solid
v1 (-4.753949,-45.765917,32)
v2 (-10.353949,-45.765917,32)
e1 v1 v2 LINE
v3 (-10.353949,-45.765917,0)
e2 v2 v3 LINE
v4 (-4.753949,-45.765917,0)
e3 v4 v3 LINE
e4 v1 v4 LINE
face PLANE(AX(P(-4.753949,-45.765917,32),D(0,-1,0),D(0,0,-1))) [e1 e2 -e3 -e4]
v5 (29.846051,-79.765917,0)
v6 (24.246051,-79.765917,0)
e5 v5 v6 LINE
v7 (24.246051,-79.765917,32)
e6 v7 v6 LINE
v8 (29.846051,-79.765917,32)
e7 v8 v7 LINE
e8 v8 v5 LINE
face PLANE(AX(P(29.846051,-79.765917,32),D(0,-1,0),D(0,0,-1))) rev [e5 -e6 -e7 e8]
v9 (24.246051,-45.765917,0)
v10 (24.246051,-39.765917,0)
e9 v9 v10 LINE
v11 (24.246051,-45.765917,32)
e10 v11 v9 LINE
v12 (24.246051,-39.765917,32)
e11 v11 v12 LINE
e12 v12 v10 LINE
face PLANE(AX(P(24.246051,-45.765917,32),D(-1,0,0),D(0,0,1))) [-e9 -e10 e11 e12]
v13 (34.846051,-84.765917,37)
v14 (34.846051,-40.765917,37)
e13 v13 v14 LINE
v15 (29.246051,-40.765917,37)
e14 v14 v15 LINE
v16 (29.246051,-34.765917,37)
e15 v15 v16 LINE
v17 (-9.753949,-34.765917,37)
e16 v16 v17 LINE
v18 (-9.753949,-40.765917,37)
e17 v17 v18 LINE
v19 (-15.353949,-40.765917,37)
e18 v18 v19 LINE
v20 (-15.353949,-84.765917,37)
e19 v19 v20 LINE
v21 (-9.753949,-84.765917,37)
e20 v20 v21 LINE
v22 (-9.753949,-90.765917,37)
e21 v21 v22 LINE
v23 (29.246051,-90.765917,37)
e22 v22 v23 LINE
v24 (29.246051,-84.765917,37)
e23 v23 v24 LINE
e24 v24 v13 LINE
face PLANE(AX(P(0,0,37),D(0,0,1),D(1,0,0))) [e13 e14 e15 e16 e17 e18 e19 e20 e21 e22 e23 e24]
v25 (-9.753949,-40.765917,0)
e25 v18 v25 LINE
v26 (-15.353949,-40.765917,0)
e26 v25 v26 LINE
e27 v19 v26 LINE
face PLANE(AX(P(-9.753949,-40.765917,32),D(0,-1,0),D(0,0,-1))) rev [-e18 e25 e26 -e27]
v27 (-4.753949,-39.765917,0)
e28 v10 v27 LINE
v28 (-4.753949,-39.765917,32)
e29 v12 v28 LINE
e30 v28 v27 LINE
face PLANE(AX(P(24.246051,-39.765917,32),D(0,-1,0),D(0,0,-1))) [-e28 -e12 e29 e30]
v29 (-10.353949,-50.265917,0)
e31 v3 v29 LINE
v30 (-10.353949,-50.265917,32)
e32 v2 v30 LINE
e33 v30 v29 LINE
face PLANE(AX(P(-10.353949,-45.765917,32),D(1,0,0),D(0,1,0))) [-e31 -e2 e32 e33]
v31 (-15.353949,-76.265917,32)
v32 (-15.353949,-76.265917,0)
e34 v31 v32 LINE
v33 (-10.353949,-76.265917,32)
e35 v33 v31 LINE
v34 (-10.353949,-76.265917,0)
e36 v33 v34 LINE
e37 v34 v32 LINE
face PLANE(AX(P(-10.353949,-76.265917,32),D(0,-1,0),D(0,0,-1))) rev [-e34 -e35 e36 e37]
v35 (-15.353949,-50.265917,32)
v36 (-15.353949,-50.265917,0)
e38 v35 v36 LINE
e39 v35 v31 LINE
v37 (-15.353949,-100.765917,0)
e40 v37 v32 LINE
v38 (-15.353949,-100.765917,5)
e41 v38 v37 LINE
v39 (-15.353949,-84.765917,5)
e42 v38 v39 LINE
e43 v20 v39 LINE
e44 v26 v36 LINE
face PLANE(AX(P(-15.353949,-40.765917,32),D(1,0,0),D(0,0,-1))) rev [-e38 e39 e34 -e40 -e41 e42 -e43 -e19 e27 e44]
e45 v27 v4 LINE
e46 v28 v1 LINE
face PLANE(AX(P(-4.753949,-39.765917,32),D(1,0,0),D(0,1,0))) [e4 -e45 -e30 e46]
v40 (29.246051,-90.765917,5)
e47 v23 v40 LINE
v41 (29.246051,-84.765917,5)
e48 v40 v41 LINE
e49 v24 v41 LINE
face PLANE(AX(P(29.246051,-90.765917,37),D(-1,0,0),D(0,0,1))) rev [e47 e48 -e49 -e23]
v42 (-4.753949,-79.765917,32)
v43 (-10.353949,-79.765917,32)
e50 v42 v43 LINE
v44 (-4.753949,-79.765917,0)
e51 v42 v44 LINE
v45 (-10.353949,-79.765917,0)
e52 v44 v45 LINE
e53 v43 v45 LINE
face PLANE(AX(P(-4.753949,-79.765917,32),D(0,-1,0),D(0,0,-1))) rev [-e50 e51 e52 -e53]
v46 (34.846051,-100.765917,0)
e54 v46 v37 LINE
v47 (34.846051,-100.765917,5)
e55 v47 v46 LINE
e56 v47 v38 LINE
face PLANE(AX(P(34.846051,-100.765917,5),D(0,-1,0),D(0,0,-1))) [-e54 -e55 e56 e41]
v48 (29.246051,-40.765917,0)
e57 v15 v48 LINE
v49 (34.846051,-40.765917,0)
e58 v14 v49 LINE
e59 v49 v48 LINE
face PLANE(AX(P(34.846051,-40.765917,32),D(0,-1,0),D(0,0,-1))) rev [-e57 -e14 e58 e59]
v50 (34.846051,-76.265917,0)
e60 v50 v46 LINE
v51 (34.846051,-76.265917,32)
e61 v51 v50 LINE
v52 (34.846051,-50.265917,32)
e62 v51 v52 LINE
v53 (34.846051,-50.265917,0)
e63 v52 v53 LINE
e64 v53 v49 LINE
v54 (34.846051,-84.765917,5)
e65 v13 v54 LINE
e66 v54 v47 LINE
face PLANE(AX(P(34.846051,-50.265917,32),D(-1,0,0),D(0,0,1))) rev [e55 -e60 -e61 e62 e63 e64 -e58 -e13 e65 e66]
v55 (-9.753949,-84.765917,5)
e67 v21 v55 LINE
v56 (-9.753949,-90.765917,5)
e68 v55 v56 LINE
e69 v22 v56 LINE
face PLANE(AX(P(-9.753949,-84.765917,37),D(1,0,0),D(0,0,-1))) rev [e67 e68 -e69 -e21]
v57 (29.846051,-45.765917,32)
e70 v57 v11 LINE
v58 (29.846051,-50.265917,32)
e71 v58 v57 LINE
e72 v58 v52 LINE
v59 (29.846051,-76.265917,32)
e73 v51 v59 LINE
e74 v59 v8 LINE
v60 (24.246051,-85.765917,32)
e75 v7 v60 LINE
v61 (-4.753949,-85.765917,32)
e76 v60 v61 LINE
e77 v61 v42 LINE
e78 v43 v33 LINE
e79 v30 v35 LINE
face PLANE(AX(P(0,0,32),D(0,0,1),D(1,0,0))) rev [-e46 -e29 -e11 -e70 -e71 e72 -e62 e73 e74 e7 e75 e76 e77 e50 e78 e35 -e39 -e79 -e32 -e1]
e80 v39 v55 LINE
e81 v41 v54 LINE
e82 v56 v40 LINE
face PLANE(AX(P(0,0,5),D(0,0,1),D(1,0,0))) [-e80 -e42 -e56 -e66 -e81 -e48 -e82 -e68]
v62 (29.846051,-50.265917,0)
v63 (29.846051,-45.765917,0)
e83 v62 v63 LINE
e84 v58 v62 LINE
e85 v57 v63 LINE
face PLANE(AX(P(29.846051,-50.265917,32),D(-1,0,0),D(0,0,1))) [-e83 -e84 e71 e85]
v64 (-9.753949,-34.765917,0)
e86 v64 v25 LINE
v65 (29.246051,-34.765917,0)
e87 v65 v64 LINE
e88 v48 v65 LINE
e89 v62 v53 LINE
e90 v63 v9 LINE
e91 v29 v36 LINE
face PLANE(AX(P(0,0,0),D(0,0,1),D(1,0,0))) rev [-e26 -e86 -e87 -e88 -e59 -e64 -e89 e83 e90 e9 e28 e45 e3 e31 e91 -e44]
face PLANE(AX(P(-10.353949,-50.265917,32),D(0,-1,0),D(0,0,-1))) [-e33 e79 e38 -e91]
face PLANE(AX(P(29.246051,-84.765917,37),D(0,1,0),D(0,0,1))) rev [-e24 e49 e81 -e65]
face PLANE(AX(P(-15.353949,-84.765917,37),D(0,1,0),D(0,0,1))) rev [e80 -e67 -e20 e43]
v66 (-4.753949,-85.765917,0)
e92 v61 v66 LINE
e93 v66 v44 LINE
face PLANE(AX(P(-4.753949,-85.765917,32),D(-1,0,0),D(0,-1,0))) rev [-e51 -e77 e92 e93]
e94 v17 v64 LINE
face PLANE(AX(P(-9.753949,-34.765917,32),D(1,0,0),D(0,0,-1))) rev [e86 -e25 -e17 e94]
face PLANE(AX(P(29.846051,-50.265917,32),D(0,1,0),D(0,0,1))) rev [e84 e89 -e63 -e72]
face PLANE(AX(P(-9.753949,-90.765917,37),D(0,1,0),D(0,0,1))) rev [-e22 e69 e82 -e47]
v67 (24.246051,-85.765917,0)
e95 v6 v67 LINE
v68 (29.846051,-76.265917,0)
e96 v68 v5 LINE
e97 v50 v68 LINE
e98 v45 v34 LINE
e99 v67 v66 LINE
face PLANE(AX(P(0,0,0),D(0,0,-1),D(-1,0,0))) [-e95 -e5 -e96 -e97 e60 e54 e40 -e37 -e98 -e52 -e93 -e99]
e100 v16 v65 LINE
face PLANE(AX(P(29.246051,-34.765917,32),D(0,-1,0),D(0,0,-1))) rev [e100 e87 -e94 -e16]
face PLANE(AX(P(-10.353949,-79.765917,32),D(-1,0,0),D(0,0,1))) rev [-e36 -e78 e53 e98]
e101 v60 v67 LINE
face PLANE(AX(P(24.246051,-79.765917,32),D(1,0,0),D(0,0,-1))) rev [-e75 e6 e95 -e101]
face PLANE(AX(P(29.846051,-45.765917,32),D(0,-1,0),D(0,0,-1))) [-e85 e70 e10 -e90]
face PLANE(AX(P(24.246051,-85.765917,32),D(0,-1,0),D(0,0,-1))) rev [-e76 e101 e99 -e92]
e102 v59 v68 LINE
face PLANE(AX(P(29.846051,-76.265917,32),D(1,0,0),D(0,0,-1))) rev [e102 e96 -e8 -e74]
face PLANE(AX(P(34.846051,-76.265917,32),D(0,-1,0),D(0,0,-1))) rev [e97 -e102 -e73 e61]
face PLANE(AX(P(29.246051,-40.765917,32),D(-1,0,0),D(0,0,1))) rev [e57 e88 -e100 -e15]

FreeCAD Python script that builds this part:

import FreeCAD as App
import Part
import Sketcher

V = App.Vector

doc = App.newDocument("Part")
params = doc.addObject("Spreadsheet::Sheet", "Params")
for row, (alias, value) in enumerate([
    ("sketch1_width", "29 mm"),
    ("sketch1_width2", "5 mm"),
    ("sketch1_height", "6 mm"),
    ("sketch1_width3", "5.6 mm"),
    ("sketch1_height2", "3.5 mm"),
    ("pad1_length", "32 mm"),
    ("sketch2_width", "5 mm"),
    ("sketch2_width2", "39 mm"),
    ("sketch2_height", "6 mm"),
    ("sketch2_width3", "5.6 mm"),
    ("sketch2_height2", "4.5 mm"),
    ("pad2_length", "32 mm"),
    ("sketch3_width", "39 mm"),
    ("sketch3_height", "6 mm"),
    ("sketch3_height2", "44 mm"),
    ("sketch3_width2", "5.6 mm"),
    ("pad3_length", "5 mm"),
    ("sketch4_width", "39 mm"),
    ("sketch4_height", "16 mm"),
    ("sketch4_height2", "6 mm"),
    ("sketch4_width2", "50.2 mm"),
    ("pad4_length", "5 mm"),
], start=1):
    params.set(f"A{row}", alias)
    params.set(f"B{row}", "=" + value)
    params.setAlias(f"B{row}", alias)

body = doc.addObject("PartDesign::Body", "Body")

sketch1 = body.newObject("Sketcher::SketchObject", "Sketch")
sketch1.AttachmentSupport = (doc.getObject("XY_Plane"), [""])
sketch1.MapMode = "FlatFace"
sketch1.addGeometry([
    Part.LineSegment(V(29.846051, -76.265917, 0), V(29.846051, -79.765917, 0)),
    Part.LineSegment(V(29.846051, -79.765917, 0), V(24.246051, -79.765917, 0)),
    Part.LineSegment(V(24.246051, -79.765917, 0), V(24.246051, -85.765917, 0)),
    Part.LineSegment(V(24.246051, -85.765917, 0), V(-4.753949, -85.765917, 0)),
    Part.LineSegment(V(-4.753949, -85.765917, 0), V(-4.753949, -79.765917, 0)),
    Part.LineSegment(V(-4.753949, -79.765917, 0), V(-10.353949, -79.765917, 0)),
    Part.LineSegment(V(-10.353949, -79.765917, 0), V(-10.353949, -76.265917, 0)),
    Part.LineSegment(V(-10.353949, -76.265917, 0), V(-15.353949, -76.265917, 0)),
    Part.LineSegment(V(-15.353949, -76.265917, 0), V(-15.353949, -84.765917, 0)),
    Part.LineSegment(V(-15.353949, -84.765917, 0), V(-9.753949, -84.765917, 0)),
    Part.LineSegment(V(-9.753949, -84.765917, 0), V(-9.753949, -90.765917, 0)),
    Part.LineSegment(V(-9.753949, -90.765917, 0), V(29.246051, -90.765917, 0)),
    Part.LineSegment(V(29.246051, -90.765917, 0), V(29.246051, -84.765917, 0)),
    Part.LineSegment(V(29.246051, -84.765917, 0), V(34.846051, -84.765917, 0)),
    Part.LineSegment(V(34.846051, -84.765917, 0), V(34.846051, -76.265917, 0)),
    Part.LineSegment(V(34.846051, -76.265917, 0), V(29.846051, -76.265917, 0)),
], False)
sketch1.addConstraint([
    Sketcher.Constraint("Coincident", 0, 2, 1, 1),
    Sketcher.Constraint("Coincident", 1, 2, 2, 1),
    Sketcher.Constraint("Coincident", 2, 2, 3, 1),
    Sketcher.Constraint("Coincident", 3, 2, 4, 1),
    Sketcher.Constraint("Coincident", 4, 2, 5, 1),
    Sketcher.Constraint("Coincident", 5, 2, 6, 1),
    Sketcher.Constraint("Coincident", 6, 2, 7, 1),
    Sketcher.Constraint("Coincident", 7, 2, 8, 1),
    Sketcher.Constraint("Coincident", 8, 2, 9, 1),
    Sketcher.Constraint("Coincident", 9, 2, 10, 1),
    Sketcher.Constraint("Coincident", 10, 2, 11, 1),
    Sketcher.Constraint("Coincident", 11, 2, 12, 1),
    Sketcher.Constraint("Coincident", 12, 2, 13, 1),
    Sketcher.Constraint("Coincident", 13, 2, 14, 1),
    Sketcher.Constraint("Coincident", 14, 2, 15, 1),
    Sketcher.Constraint("Coincident", 15, 2, 0, 1),
    Sketcher.Constraint("Vertical", 0),
    Sketcher.Constraint("Horizontal", 1),
    Sketcher.Constraint("Vertical", 2),
    Sketcher.Constraint("Horizontal", 3),
    Sketcher.Constraint("Vertical", 4),
    Sketcher.Constraint("Horizontal", 5),
    Sketcher.Constraint("Vertical", 6),
    Sketcher.Constraint("Horizontal", 7),
    Sketcher.Constraint("Vertical", 8),
    Sketcher.Constraint("Horizontal", 9),
    Sketcher.Constraint("Vertical", 10),
    Sketcher.Constraint("Horizontal", 11),
    Sketcher.Constraint("Vertical", 12),
    Sketcher.Constraint("Horizontal", 13),
    Sketcher.Constraint("Vertical", 14),
    Sketcher.Constraint("Horizontal", 15),
    Sketcher.Constraint("Horizontal", 1, 2, 4, 2),
    Sketcher.Constraint("Horizontal", 9, 2, 12, 2),
    Sketcher.Constraint("Horizontal", 7, 2, 14, 2),
    Sketcher.Constraint("Equal", 1, 5),
    Sketcher.Constraint("Equal", 5, 9),
    Sketcher.Constraint("Equal", 9, 13),
    Sketcher.Constraint("Equal", 7, 15),
    Sketcher.Constraint("Equal", 4, 10),
    Sketcher.Constraint("DistanceX", 3, 2, 3, 1, 29.0),
    Sketcher.Constraint("DistanceX", 7, 2, 7, 1, 5.0),
    Sketcher.Constraint("DistanceY", 2, 2, 2, 1, 6.0),
    Sketcher.Constraint("DistanceX", 1, 2, 1, 1, 5.6),
    Sketcher.Constraint("DistanceY", 0, 2, 0, 1, 3.5),
    Sketcher.Constraint("DistanceY", 8, 2, 8, 1, 8.5),
    Sketcher.Constraint("DistanceX", -1, 1, 0, 2, 29.846051),
    Sketcher.Constraint("DistanceY", 0, 2, -1, 1, 79.765917),
])
sketch1.setExpression("Constraints[40]", "Params.sketch1_width")
sketch1.setExpression("Constraints[41]", "Params.sketch1_width2")
sketch1.setExpression("Constraints[42]", "Params.sketch1_height")
sketch1.setExpression("Constraints[43]", "Params.sketch1_width3")
sketch1.setExpression("Constraints[44]", "Params.sketch1_height2")
pad1 = body.newObject("PartDesign::Pad", "Pad")
pad1.Profile = sketch1
pad1.setExpression("Length", "Params.pad1_length")
body2 = doc.addObject("PartDesign::Body", "Body001")

sketch2 = body2.newObject("Sketcher::SketchObject", "Sketch001")
sketch2.AttachmentSupport = (doc.getObject("XY_Plane001"), [""])
sketch2.MapMode = "FlatFace"
sketch2.addGeometry([
    Part.LineSegment(V(29.846051, -45.765917, 0), V(29.846051, -50.265917, 0)),
    Part.LineSegment(V(29.846051, -50.265917, 0), V(34.846051, -50.265917, 0)),
    Part.LineSegment(V(34.846051, -50.265917, 0), V(34.846051, -40.765917, 0)),
    Part.LineSegment(V(34.846051, -40.765917, 0), V(29.246051, -40.765917, 0)),
    Part.LineSegment(V(29.246051, -40.765917, 0), V(29.246051, -34.765917, 0)),
    Part.LineSegment(V(29.246051, -34.765917, 0), V(-9.753949, -34.765917, 0)),
    Part.LineSegment(V(-9.753949, -34.765917, 0), V(-9.753949, -40.765917, 0)),
    Part.LineSegment(V(-9.753949, -40.765917, 0), V(-15.353949, -40.765917, 0)),
    Part.LineSegment(V(-15.353949, -40.765917, 0), V(-15.353949, -50.265917, 0)),
    Part.LineSegment(V(-15.353949, -50.265917, 0), V(-10.353949, -50.265917, 0)),
    Part.LineSegment(V(-10.353949, -50.265917, 0), V(-10.353949, -45.765917, 0)),
    Part.LineSegment(V(-10.353949, -45.765917, 0), V(-4.753949, -45.765917, 0)),
    Part.LineSegment(V(-4.753949, -45.765917, 0), V(-4.753949, -39.765917, 0)),
    Part.LineSegment(V(-4.753949, -39.765917, 0), V(24.246051, -39.765917, 0)),
    Part.LineSegment(V(24.246051, -39.765917, 0), V(24.246051, -45.765917, 0)),
    Part.LineSegment(V(24.246051, -45.765917, 0), V(29.846051, -45.765917, 0)),
], False)
sketch2.addConstraint([
    Sketcher.Constraint("Coincident", 0, 2, 1, 1),
    Sketcher.Constraint("Coincident", 1, 2, 2, 1),
    Sketcher.Constraint("Coincident", 2, 2, 3, 1),
    Sketcher.Constraint("Coincident", 3, 2, 4, 1),
    Sketcher.Constraint("Coincident", 4, 2, 5, 1),
    Sketcher.Constraint("Coincident", 5, 2, 6, 1),
    Sketcher.Constraint("Coincident", 6, 2, 7, 1),
    Sketcher.Constraint("Coincident", 7, 2, 8, 1),
    Sketcher.Constraint("Coincident", 8, 2, 9, 1),
    Sketcher.Constraint("Coincident", 9, 2, 10, 1),
    Sketcher.Constraint("Coincident", 10, 2, 11, 1),
    Sketcher.Constraint("Coincident", 11, 2, 12, 1),
    Sketcher.Constraint("Coincident", 12, 2, 13, 1),
    Sketcher.Constraint("Coincident", 13, 2, 14, 1),
    Sketcher.Constraint("Coincident", 14, 2, 15, 1),
    Sketcher.Constraint("Coincident", 15, 2, 0, 1),
    Sketcher.Constraint("Vertical", 0),
    Sketcher.Constraint("Horizontal", 1),
    Sketcher.Constraint("Vertical", 2),
    Sketcher.Constraint("Horizontal", 3),
    Sketcher.Constraint("Vertical", 4),
    Sketcher.Constraint("Horizontal", 5),
    Sketcher.Constraint("Vertical", 6),
    Sketcher.Constraint("Horizontal", 7),
    Sketcher.Constraint("Vertical", 8),
    Sketcher.Constraint("Horizontal", 9),
    Sketcher.Constraint("Vertical", 10),
    Sketcher.Constraint("Horizontal", 11),
    Sketcher.Constraint("Vertical", 12),
    Sketcher.Constraint("Horizontal", 13),
    Sketcher.Constraint("Vertical", 14),
    Sketcher.Constraint("Horizontal", 15),
    Sketcher.Constraint("Horizontal", 3, 2, 6, 2),
    Sketcher.Constraint("Horizontal", 1, 2, 8, 2),
    Sketcher.Constraint("Horizontal", 11, 2, 14, 2),
    Sketcher.Constraint("Equal", 3, 7),
    Sketcher.Constraint("Equal", 1, 9),
    Sketcher.Constraint("Equal", 7, 11),
    Sketcher.Constraint("Equal", 11, 15),
    Sketcher.Constraint("Equal", 6, 12),
    Sketcher.Constraint("DistanceX", 1, 1, 1, 2, 5.0),
    Sketcher.Constraint("DistanceX", 5, 2, 5, 1, 39.0),
    Sketcher.Constraint("DistanceY", 4, 1, 4, 2, 6.0),
    Sketcher.Constraint("DistanceX", 3, 2, 3, 1, 5.6),
    Sketcher.Constraint("DistanceY", 0, 2, 0, 1, 4.5),
    Sketcher.Constraint("DistanceY", 2, 1, 2, 2, 9.5),
    Sketcher.Constraint("DistanceX", -1, 1, 0, 2, 29.846051),
    Sketcher.Constraint("DistanceY", 0, 2, -1, 1, 50.265917),
])
sketch2.setExpression("Constraints[40]", "Params.sketch2_width")
sketch2.setExpression("Constraints[41]", "Params.sketch2_width2")
sketch2.setExpression("Constraints[42]", "Params.sketch2_height")
sketch2.setExpression("Constraints[43]", "Params.sketch2_width3")
sketch2.setExpression("Constraints[44]", "Params.sketch2_height2")
pad2 = body2.newObject("PartDesign::Pad", "Pad001")
pad2.Profile = sketch2
pad2.setExpression("Length", "Params.pad2_length")
body.AllowCompound = True
doc.recompute()

boolean = body.newObject("PartDesign::Boolean", "Boolean")
boolean.Type = "Fuse"
boolean.addObjects([body2])

sketch3 = body.newObject("Sketcher::SketchObject", "Sketch002")
sketch3.AttachmentSupport = (doc.getObject("XY_Plane"), [""])
sketch3.MapMode = "FlatFace"
sketch3.AttachmentOffset = App.Placement(V(0, 0, 32), App.Rotation())
sketch3.addGeometry([
    Part.LineSegment(V(-9.753949, -34.765917, 0), V(-9.753949, -40.765917, 0)),
    Part.LineSegment(V(-9.753949, -40.765917, 0), V(-15.353949, -40.765917, 0)),
    Part.LineSegment(V(-15.353949, -40.765917, 0), V(-15.353949, -84.765917, 0)),
    Part.LineSegment(V(-15.353949, -84.765917, 0), V(-9.753949, -84.765917, 0)),
    Part.LineSegment(V(-9.753949, -84.765917, 0), V(-9.753949, -90.765917, 0)),
    Part.LineSegment(V(-9.753949, -90.765917, 0), V(29.246051, -90.765917, 0)),
    Part.LineSegment(V(29.246051, -90.765917, 0), V(29.246051, -84.765917, 0)),
    Part.LineSegment(V(29.246051, -84.765917, 0), V(34.846051, -84.765917, 0)),
    Part.LineSegment(V(34.846051, -84.765917, 0), V(34.846051, -40.765917, 0)),
    Part.LineSegment(V(34.846051, -40.765917, 0), V(29.246051, -40.765917, 0)),
    Part.LineSegment(V(29.246051, -40.765917, 0), V(29.246051, -34.765917, 0)),
    Part.LineSegment(V(29.246051, -34.765917, 0), V(-9.753949, -34.765917, 0)),
], False)
sketch3.addConstraint([
    Sketcher.Constraint("Coincident", 0, 2, 1, 1),
    Sketcher.Constraint("Coincident", 1, 2, 2, 1),
    Sketcher.Constraint("Coincident", 2, 2, 3, 1),
    Sketcher.Constraint("Coincident", 3, 2, 4, 1),
    Sketcher.Constraint("Coincident", 4, 2, 5, 1),
    Sketcher.Constraint("Coincident", 5, 2, 6, 1),
    Sketcher.Constraint("Coincident", 6, 2, 7, 1),
    Sketcher.Constraint("Coincident", 7, 2, 8, 1),
    Sketcher.Constraint("Coincident", 8, 2, 9, 1),
    Sketcher.Constraint("Coincident", 9, 2, 10, 1),
    Sketcher.Constraint("Coincident", 10, 2, 11, 1),
    Sketcher.Constraint("Coincident", 11, 2, 0, 1),
    Sketcher.Constraint("Vertical", 0),
    Sketcher.Constraint("Horizontal", 1),
    Sketcher.Constraint("Vertical", 2),
    Sketcher.Constraint("Horizontal", 3),
    Sketcher.Constraint("Vertical", 4),
    Sketcher.Constraint("Horizontal", 5),
    Sketcher.Constraint("Vertical", 6),
    Sketcher.Constraint("Horizontal", 7),
    Sketcher.Constraint("Vertical", 8),
    Sketcher.Constraint("Horizontal", 9),
    Sketcher.Constraint("Vertical", 10),
    Sketcher.Constraint("Horizontal", 11),
    Sketcher.Constraint("Horizontal", 3, 2, 6, 2),
    Sketcher.Constraint("Horizontal", 1, 2, 8, 2),
    Sketcher.Constraint("Vertical", 0, 2, 3, 2),
    Sketcher.Constraint("Vertical", 6, 2, 9, 2),
    Sketcher.Constraint("Equal", 3, 7),
    Sketcher.Constraint("Equal", 0, 4),
    Sketcher.Constraint("DistanceX", 5, 1, 5, 2, 39.0),
    Sketcher.Constraint("DistanceY", 0, 2, 0, 1, 6.0),
    Sketcher.Constraint("DistanceY", 2, 2, 2, 1, 44.0),
    Sketcher.Constraint("DistanceX", 1, 2, 1, 1, 5.6),
    Sketcher.Constraint("DistanceX", 0, 2, -1, 1, 9.753949),
    Sketcher.Constraint("DistanceY", 0, 2, -1, 1, 40.765917),
])
sketch3.setExpression("Constraints[30]", "Params.sketch3_width")
sketch3.setExpression("Constraints[31]", "Params.sketch3_height")
sketch3.setExpression("Constraints[32]", "Params.sketch3_height2")
sketch3.setExpression("Constraints[33]", "Params.sketch3_width2")
pad3 = body.newObject("PartDesign::Pad", "Pad002")
pad3.Profile = sketch3
pad3.setExpression("Length", "Params.pad3_length")

sketch4 = body.newObject("Sketcher::SketchObject", "Sketch003")
sketch4.AttachmentSupport = (doc.getObject("XY_Plane"), [""])
sketch4.MapMode = "FlatFace"
sketch4.addGeometry([
    Part.LineSegment(V(34.846051, -84.765917, 0), V(34.846051, -100.765917, 0)),
    Part.LineSegment(V(34.846051, -100.765917, 0), V(-15.353949, -100.765917, 0)),
    Part.LineSegment(V(-15.353949, -100.765917, 0), V(-15.353949, -84.765917, 0)),
    Part.LineSegment(V(-15.353949, -84.765917, 0), V(-9.753949, -84.765917, 0)),
    Part.LineSegment(V(-9.753949, -84.765917, 0), V(-9.753949, -90.765917, 0)),
    Part.LineSegment(V(-9.753949, -90.765917, 0), V(29.246051, -90.765917, 0)),
    Part.LineSegment(V(29.246051, -90.765917, 0), V(29.246051, -84.765917, 0)),
    Part.LineSegment(V(29.246051, -84.765917, 0), V(34.846051, -84.765917, 0)),
], False)
sketch4.addConstraint([
    Sketcher.Constraint("Coincident", 0, 2, 1, 1),
    Sketcher.Constraint("Coincident", 1, 2, 2, 1),
    Sketcher.Constraint("Coincident", 2, 2, 3, 1),
    Sketcher.Constraint("Coincident", 3, 2, 4, 1),
    Sketcher.Constraint("Coincident", 4, 2, 5, 1),
    Sketcher.Constraint("Coincident", 5, 2, 6, 1),
    Sketcher.Constraint("Coincident", 6, 2, 7, 1),
    Sketcher.Constraint("Coincident", 7, 2, 0, 1),
    Sketcher.Constraint("Vertical", 0),
    Sketcher.Constraint("Horizontal", 1),
    Sketcher.Constraint("Vertical", 2),
    Sketcher.Constraint("Horizontal", 3),
    Sketcher.Constraint("Vertical", 4),
    Sketcher.Constraint("Horizontal", 5),
    Sketcher.Constraint("Vertical", 6),
    Sketcher.Constraint("Horizontal", 7),
    Sketcher.Constraint("Horizontal", 3, 2, 6, 2),
    Sketcher.Constraint("Equal", 3, 7),
    Sketcher.Constraint("DistanceX", 5, 1, 5, 2, 39.0),
    Sketcher.Constraint("DistanceY", 0, 2, 0, 1, 16.0),
    Sketcher.Constraint("DistanceY", 4, 2, 4, 1, 6.0),
    Sketcher.Constraint("DistanceX", 1, 2, 1, 1, 50.2),
    Sketcher.Constraint("DistanceX", -1, 1, 0, 2, 34.846051),
    Sketcher.Constraint("DistanceY", 0, 2, -1, 1, 100.765917),
])
sketch4.setExpression("Constraints[18]", "Params.sketch4_width")
sketch4.setExpression("Constraints[19]", "Params.sketch4_height")
sketch4.setExpression("Constraints[20]", "Params.sketch4_height2")
sketch4.setExpression("Constraints[21]", "Params.sketch4_width2")
pad4 = body.newObject("PartDesign::Pad", "Pad003")
pad4.Profile = sketch4
pad4.setExpression("Length", "Params.pad4_length")

doc.recompute()
